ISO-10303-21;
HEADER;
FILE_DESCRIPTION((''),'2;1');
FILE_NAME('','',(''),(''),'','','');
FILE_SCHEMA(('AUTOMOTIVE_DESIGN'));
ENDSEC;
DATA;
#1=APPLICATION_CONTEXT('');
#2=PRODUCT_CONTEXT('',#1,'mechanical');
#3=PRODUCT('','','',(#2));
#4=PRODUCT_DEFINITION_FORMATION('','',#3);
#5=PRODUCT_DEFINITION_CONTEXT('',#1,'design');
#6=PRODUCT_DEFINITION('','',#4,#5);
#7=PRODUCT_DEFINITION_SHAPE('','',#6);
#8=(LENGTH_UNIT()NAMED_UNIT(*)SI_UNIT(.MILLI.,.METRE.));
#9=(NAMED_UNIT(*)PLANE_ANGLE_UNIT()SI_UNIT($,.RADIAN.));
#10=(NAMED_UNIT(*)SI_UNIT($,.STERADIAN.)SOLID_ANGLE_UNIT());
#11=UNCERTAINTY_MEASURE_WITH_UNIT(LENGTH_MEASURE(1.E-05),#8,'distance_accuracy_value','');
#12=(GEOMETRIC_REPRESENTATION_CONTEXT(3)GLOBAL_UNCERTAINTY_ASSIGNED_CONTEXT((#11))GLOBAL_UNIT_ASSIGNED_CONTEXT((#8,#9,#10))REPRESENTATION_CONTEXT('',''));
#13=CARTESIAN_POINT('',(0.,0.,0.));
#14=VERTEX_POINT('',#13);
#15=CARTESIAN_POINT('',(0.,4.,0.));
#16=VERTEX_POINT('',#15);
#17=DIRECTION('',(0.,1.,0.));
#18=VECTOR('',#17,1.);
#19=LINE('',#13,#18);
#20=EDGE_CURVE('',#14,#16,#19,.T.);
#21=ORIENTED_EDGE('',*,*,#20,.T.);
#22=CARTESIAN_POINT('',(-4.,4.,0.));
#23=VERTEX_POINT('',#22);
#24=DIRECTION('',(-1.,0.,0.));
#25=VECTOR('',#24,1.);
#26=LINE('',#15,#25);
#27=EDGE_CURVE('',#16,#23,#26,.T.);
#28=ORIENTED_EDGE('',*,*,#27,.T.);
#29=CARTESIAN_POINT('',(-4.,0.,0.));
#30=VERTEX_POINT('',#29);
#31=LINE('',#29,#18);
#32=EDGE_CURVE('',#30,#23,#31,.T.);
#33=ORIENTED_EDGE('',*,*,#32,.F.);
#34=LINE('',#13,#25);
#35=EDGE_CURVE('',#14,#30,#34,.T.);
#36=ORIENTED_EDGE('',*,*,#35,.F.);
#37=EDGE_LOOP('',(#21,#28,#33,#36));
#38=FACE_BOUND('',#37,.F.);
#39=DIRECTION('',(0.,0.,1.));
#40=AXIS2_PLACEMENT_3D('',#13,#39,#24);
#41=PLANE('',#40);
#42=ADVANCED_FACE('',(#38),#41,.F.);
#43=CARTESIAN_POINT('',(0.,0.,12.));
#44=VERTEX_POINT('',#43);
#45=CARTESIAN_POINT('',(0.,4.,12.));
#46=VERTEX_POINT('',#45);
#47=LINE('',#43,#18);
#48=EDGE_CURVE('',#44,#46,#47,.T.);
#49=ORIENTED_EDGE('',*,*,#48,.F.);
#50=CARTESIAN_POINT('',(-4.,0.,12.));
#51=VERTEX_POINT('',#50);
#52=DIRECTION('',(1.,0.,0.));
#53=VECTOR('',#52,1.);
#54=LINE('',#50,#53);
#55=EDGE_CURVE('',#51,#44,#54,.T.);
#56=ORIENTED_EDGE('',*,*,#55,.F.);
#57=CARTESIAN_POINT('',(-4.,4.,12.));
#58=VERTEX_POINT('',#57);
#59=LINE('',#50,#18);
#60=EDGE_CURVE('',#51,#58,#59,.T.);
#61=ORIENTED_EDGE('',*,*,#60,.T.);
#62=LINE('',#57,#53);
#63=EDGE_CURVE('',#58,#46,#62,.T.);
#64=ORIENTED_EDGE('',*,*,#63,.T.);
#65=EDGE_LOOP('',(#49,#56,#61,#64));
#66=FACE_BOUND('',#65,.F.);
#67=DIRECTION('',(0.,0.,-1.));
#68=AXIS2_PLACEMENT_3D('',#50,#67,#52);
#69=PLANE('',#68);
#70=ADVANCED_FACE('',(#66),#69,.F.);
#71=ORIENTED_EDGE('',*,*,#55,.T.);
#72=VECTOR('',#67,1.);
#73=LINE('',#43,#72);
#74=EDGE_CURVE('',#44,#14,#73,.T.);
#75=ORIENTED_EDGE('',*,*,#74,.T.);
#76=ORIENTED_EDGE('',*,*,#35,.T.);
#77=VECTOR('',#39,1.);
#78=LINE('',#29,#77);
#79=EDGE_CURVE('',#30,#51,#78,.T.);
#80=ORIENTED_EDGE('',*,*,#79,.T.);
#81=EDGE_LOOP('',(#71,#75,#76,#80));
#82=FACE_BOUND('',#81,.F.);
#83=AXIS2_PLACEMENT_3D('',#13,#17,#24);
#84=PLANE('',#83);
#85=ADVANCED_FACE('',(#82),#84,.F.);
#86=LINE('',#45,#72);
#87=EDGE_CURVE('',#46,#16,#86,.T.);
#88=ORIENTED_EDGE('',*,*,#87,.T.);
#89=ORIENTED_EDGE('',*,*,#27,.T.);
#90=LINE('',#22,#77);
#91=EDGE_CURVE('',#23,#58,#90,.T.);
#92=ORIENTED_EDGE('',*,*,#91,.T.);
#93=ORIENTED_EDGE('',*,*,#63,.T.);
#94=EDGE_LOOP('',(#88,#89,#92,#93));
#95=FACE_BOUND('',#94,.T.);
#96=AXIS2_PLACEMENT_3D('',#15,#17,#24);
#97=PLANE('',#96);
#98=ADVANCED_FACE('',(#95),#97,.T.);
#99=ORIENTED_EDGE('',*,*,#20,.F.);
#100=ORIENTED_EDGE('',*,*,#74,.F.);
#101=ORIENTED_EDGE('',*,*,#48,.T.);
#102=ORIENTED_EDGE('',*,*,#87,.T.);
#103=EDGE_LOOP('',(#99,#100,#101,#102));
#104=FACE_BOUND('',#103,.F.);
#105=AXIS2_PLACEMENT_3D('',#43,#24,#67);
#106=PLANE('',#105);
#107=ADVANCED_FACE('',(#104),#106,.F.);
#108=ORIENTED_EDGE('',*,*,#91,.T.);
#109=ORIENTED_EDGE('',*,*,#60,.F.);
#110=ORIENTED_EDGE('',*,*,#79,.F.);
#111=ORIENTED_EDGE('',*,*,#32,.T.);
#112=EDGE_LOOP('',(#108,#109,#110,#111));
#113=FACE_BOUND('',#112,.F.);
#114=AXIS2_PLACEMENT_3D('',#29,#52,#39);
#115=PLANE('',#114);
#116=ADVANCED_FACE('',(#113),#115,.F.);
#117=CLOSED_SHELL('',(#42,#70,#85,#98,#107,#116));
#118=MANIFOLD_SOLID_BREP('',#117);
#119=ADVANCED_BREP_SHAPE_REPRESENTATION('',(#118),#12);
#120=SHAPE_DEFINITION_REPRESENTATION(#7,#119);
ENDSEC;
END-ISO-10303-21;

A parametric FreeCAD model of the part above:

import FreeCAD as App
import Part
import Sketcher
from FreeCAD import Vector
Q = App.Units.Quantity

doc = App.newDocument("Part")
body = doc.addObject("PartDesign::Body", "Body")

# Sketch on XZ plane
sketch1 = body.newObject("Sketcher::SketchObject", "Sketch")
sketch1.AttachmentSupport = (doc.getObject("XZ_Plane"), [""])
sketch1.MapMode = "FlatFace"
sketch1.addGeometry(Part.LineSegment(Vector(0, 12, 0), Vector(0, 0, 0)), False)
sketch1.addGeometry(Part.LineSegment(Vector(0, 0, 0), Vector(-4, 0, 0)), False)
sketch1.addGeometry(Part.LineSegment(Vector(-4, 0, 0), Vector(-4, 12, 0)), False)
sketch1.addGeometry(Part.LineSegment(Vector(-4, 12, 0), Vector(0, 12, 0)), False)
sketch1.addConstraint(Sketcher.Constraint("Coincident", 0, 2, 1, 1))
sketch1.addConstraint(Sketcher.Constraint("Coincident", 1, 2, 2, 1))
sketch1.addConstraint(Sketcher.Constraint("Coincident", 2, 2, 3, 1))
sketch1.addConstraint(Sketcher.Constraint("Coincident", 3, 2, 0, 1))
sketch1.addConstraint(Sketcher.Constraint("Vertical", 0))
sketch1.addConstraint(Sketcher.Constraint("Horizontal", 1))
sketch1.addConstraint(Sketcher.Constraint("Vertical", 2))
sketch1.addConstraint(Sketcher.Constraint("Horizontal", 3))
sketch1.addConstraint(Sketcher.Constraint("Coincident", 0, 2, -1, 1))
sketch1.addConstraint(Sketcher.Constraint("DistanceX", 1, 2, 1, 1, Q("4 mm")))
sketch1.addConstraint(Sketcher.Constraint("DistanceY", 0, 2, 0, 1, Q("12 mm")))
pad1 = body.newObject("PartDesign::Pad", "Pad")
pad1.Profile = sketch1
pad1.Length = 4
pad1.Reversed = True

doc.recompute()
